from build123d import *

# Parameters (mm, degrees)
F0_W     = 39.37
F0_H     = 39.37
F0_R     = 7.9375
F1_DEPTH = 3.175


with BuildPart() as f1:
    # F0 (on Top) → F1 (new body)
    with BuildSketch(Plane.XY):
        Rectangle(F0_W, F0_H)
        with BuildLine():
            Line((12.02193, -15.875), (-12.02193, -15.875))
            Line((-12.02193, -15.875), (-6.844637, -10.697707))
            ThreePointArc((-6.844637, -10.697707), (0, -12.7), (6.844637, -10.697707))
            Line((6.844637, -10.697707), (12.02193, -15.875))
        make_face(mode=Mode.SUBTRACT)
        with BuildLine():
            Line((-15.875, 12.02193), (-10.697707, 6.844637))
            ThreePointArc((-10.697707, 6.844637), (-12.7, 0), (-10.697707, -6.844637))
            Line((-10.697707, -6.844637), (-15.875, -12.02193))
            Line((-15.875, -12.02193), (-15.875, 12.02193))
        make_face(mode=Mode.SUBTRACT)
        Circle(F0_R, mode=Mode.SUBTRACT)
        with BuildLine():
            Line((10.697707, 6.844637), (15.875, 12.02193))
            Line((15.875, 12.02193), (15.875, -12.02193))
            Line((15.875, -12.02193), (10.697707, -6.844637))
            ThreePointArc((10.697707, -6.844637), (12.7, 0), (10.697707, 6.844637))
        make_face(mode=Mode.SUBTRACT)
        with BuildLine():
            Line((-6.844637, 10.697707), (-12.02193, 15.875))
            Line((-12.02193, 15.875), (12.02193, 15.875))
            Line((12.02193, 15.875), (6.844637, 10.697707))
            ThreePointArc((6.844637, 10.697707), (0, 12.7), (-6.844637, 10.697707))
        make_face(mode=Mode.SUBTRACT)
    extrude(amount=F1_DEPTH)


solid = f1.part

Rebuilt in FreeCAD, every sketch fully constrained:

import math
import FreeCAD as App
import Part
import Sketcher

V = App.Vector
Q = App.Units.Quantity

doc = App.newDocument("Part")
body = doc.addObject("PartDesign::Body", "Body")

sketch1 = doc.addObject("Sketcher::SketchObject", "Sketch")
body.addObject(sketch1)
sketch1.AttachmentSupport = (doc.XY_Plane, [""])
sketch1.MapMode = "FlatFace"
sketch1.addGeometry(Part.LineSegment(V(-20, 20, 0), V(-20, -20, 0)), False)
sketch1.addGeometry(Part.LineSegment(V(-20, -20, 0), V(20, -20, 0)), False)
sketch1.addGeometry(Part.LineSegment(V(20, -20, 0), V(20, 20, 0)), False)
sketch1.addGeometry(Part.LineSegment(V(20, 20, 0), V(-20, 20, 0)), False)
sketch1.addGeometry(Part.LineSegment(V(7, -11, 0), V(12, -16, 0)), False)
sketch1.addGeometry(Part.LineSegment(V(12, -16, 0), V(-12, -16, 0)), False)
sketch1.addGeometry(Part.LineSegment(V(-12, -16, 0), V(-7, -11, 0)), False)
sketch1.addGeometry(Part.ArcOfCircle(Part.Circle(V(0, 0, 0), V(0, 0, 1), 13), math.radians(-123), math.radians(-57)), False)
sketch1.addGeometry(Part.LineSegment(V(-16, -12, 0), V(-16, 12, 0)), False)
sketch1.addGeometry(Part.LineSegment(V(-16, 12, 0), V(-11, 7, 0)), False)
sketch1.addGeometry(Part.ArcOfCircle(Part.Circle(V(0, 0, 0), V(0, 0, 1), 13), math.radians(147), math.radians(213)), False)
sketch1.addGeometry(Part.LineSegment(V(-11, -7, 0), V(-16, -12, 0)), False)
sketch1.addGeometry(Part.Circle(V(0, 0, 0), V(0, 0, 1), 8), False)
sketch1.addGeometry(Part.ArcOfCircle(Part.Circle(V(0, 0, 0), V(0, 0, 1), 13), math.radians(-33), math.radians(33)), False)
sketch1.addGeometry(Part.LineSegment(V(11, 7, 0), V(16, 12, 0)), False)
sketch1.addGeometry(Part.LineSegment(V(16, 12, 0), V(16, -12, 0)), False)
sketch1.addGeometry(Part.LineSegment(V(16, -12, 0), V(11, -7, 0)), False)
sketch1.addGeometry(Part.ArcOfCircle(Part.Circle(V(0, 0, 0), V(0, 0, 1), 13), math.radians(57), math.radians(123)), False)
sketch1.addGeometry(Part.LineSegment(V(-7, 11, 0), V(-12, 16, 0)), False)
sketch1.addGeometry(Part.LineSegment(V(-12, 16, 0), V(12, 16, 0)), False)
sketch1.addGeometry(Part.LineSegment(V(12, 16, 0), V(7, 11, 0)), False)
sketch1.addConstraint(Sketcher.Constraint("Coincident", 0, 2, 1, 1))
sketch1.addConstraint(Sketcher.Constraint("Coincident", 1, 2, 2, 1))
sketch1.addConstraint(Sketcher.Constraint("Coincident", 2, 2, 3, 1))
sketch1.addConstraint(Sketcher.Constraint("Coincident", 3, 2, 0, 1))
sketch1.addConstraint(Sketcher.Constraint("Coincident", 4, 2, 5, 1))
sketch1.addConstraint(Sketcher.Constraint("Coincident", 5, 2, 6, 1))
sketch1.addConstraint(Sketcher.Constraint("Coincident", 6, 2, 7, 1))
sketch1.addConstraint(Sketcher.Constraint("Coincident", 7, 2, 4, 1))
sketch1.addConstraint(Sketcher.Constraint("Coincident", 8, 2, 9, 1))
sketch1.addConstraint(Sketcher.Constraint("Coincident", 9, 2, 10, 1))
sketch1.addConstraint(Sketcher.Constraint("Coincident", 10, 2, 11, 1))
sketch1.addConstraint(Sketcher.Constraint("Coincident", 11, 2, 8, 1))
sketch1.addConstraint(Sketcher.Constraint("Coincident", 13, 2, 14, 1))
sketch1.addConstraint(Sketcher.Constraint("Coincident", 14, 2, 15, 1))
sketch1.addConstraint(Sketcher.Constraint("Coincident", 15, 2, 16, 1))
sketch1.addConstraint(Sketcher.Constraint("Coincident", 16, 2, 13, 1))
sketch1.addConstraint(Sketcher.Constraint("Coincident", 17, 2, 18, 1))
sketch1.addConstraint(Sketcher.Constraint("Coincident", 18, 2, 19, 1))
sketch1.addConstraint(Sketcher.Constraint("Coincident", 19, 2, 20, 1))
sketch1.addConstraint(Sketcher.Constraint("Coincident", 20, 2, 17, 1))
sketch1.addConstraint(Sketcher.Constraint("Vertical", 0))
sketch1.addConstraint(Sketcher.Constraint("Horizontal", 1))
sketch1.addConstraint(Sketcher.Constraint("Vertical", 2))
sketch1.addConstraint(Sketcher.Constraint("Horizontal", 3))
sketch1.addConstraint(Sketcher.Constraint("Horizontal", 5))
sketch1.addConstraint(Sketcher.Constraint("Vertical", 8))
sketch1.addConstraint(Sketcher.Constraint("Vertical", 15))
sketch1.addConstraint(Sketcher.Constraint("Horizontal", 19))
sketch1.addConstraint(Sketcher.Constraint("Coincident", 7, 3, -1, 1))
sketch1.addConstraint(Sketcher.Constraint("Coincident", 10, 3, -1, 1))
sketch1.addConstraint(Sketcher.Constraint("Coincident", 12, 3, -1, 1))
sketch1.addConstraint(Sketcher.Constraint("Coincident", 13, 3, -1, 1))
sketch1.addConstraint(Sketcher.Constraint("Coincident", 17, 3, -1, 1))
sketch1.addConstraint(Sketcher.Constraint("Equal", 7, 10))
sketch1.addConstraint(Sketcher.Constraint("Equal", 10, 13))
sketch1.addConstraint(Sketcher.Constraint("Equal", 13, 17))
sketch1.addConstraint(Sketcher.Constraint("Symmetric", 0, 2, 2, 2, -1, 1))
sketch1.addConstraint(Sketcher.Constraint("Symmetric", 11, 2, 14, 2, -1, 1))
sketch1.addConstraint(Sketcher.Constraint("Symmetric", 4, 2, 18, 2, -1, 1))
sketch1.addConstraint(Sketcher.Constraint("Perpendicular", 4, 6))
sketch1.addConstraint(Sketcher.Constraint("Perpendicular", 6, 9))
sketch1.addConstraint(Sketcher.Constraint("Perpendicular", 9, 11))
sketch1.addConstraint(Sketcher.Constraint("Parallel", 11, 14))
sketch1.addConstraint(Sketcher.Constraint("Perpendicular", 14, 16))
sketch1.addConstraint(Sketcher.Constraint("Parallel", 16, 18))
sketch1.addConstraint(Sketcher.Constraint("Perpendicular", 18, 20))
sketch1.addConstraint(Sketcher.Constraint("Horizontal", 6, 2, 7, 2))
sketch1.addConstraint(Sketcher.Constraint("Horizontal", 9, 2, 13, 2))
sketch1.addConstraint(Sketcher.Constraint("Horizontal", 8, 2, 14, 2))
sketch1.addConstraint(Sketcher.Constraint("Horizontal", 11, 2, 15, 2))
sketch1.addConstraint(Sketcher.Constraint("Horizontal", 17, 2, 20, 2))
sketch1.addConstraint(Sketcher.Constraint("Equal", 3, 0))
sketch1.addConstraint(Sketcher.Constraint("Equal", 19, 8))
sketch1.addConstraint(Sketcher.Constraint("Equal", 6, 9))
sketch1.addConstraint(Sketcher.Constraint("Radius", 7, Q("0.4999999 in")))
sketch1.addConstraint(Sketcher.Constraint("Diameter", 12, Q("0.625 in")))
sketch1.addConstraint(Sketcher.Constraint("DistanceX", 1, 1, 1, 2, Q("1.55 in")))
sketch1.addConstraint(Sketcher.Constraint("DistanceY", 1, 2, 4, 2, Q("0.15 in")))
sketch1.addConstraint(Sketcher.Constraint("DistanceX", 5, 2, 5, 1, Q("24.04386 mm")))
pad1 = doc.addObject("PartDesign::Pad", "Pad")
body.addObject(pad1)
pad1.Profile = sketch1
pad1.Length = Q("0.125 in")

doc.recompute()
